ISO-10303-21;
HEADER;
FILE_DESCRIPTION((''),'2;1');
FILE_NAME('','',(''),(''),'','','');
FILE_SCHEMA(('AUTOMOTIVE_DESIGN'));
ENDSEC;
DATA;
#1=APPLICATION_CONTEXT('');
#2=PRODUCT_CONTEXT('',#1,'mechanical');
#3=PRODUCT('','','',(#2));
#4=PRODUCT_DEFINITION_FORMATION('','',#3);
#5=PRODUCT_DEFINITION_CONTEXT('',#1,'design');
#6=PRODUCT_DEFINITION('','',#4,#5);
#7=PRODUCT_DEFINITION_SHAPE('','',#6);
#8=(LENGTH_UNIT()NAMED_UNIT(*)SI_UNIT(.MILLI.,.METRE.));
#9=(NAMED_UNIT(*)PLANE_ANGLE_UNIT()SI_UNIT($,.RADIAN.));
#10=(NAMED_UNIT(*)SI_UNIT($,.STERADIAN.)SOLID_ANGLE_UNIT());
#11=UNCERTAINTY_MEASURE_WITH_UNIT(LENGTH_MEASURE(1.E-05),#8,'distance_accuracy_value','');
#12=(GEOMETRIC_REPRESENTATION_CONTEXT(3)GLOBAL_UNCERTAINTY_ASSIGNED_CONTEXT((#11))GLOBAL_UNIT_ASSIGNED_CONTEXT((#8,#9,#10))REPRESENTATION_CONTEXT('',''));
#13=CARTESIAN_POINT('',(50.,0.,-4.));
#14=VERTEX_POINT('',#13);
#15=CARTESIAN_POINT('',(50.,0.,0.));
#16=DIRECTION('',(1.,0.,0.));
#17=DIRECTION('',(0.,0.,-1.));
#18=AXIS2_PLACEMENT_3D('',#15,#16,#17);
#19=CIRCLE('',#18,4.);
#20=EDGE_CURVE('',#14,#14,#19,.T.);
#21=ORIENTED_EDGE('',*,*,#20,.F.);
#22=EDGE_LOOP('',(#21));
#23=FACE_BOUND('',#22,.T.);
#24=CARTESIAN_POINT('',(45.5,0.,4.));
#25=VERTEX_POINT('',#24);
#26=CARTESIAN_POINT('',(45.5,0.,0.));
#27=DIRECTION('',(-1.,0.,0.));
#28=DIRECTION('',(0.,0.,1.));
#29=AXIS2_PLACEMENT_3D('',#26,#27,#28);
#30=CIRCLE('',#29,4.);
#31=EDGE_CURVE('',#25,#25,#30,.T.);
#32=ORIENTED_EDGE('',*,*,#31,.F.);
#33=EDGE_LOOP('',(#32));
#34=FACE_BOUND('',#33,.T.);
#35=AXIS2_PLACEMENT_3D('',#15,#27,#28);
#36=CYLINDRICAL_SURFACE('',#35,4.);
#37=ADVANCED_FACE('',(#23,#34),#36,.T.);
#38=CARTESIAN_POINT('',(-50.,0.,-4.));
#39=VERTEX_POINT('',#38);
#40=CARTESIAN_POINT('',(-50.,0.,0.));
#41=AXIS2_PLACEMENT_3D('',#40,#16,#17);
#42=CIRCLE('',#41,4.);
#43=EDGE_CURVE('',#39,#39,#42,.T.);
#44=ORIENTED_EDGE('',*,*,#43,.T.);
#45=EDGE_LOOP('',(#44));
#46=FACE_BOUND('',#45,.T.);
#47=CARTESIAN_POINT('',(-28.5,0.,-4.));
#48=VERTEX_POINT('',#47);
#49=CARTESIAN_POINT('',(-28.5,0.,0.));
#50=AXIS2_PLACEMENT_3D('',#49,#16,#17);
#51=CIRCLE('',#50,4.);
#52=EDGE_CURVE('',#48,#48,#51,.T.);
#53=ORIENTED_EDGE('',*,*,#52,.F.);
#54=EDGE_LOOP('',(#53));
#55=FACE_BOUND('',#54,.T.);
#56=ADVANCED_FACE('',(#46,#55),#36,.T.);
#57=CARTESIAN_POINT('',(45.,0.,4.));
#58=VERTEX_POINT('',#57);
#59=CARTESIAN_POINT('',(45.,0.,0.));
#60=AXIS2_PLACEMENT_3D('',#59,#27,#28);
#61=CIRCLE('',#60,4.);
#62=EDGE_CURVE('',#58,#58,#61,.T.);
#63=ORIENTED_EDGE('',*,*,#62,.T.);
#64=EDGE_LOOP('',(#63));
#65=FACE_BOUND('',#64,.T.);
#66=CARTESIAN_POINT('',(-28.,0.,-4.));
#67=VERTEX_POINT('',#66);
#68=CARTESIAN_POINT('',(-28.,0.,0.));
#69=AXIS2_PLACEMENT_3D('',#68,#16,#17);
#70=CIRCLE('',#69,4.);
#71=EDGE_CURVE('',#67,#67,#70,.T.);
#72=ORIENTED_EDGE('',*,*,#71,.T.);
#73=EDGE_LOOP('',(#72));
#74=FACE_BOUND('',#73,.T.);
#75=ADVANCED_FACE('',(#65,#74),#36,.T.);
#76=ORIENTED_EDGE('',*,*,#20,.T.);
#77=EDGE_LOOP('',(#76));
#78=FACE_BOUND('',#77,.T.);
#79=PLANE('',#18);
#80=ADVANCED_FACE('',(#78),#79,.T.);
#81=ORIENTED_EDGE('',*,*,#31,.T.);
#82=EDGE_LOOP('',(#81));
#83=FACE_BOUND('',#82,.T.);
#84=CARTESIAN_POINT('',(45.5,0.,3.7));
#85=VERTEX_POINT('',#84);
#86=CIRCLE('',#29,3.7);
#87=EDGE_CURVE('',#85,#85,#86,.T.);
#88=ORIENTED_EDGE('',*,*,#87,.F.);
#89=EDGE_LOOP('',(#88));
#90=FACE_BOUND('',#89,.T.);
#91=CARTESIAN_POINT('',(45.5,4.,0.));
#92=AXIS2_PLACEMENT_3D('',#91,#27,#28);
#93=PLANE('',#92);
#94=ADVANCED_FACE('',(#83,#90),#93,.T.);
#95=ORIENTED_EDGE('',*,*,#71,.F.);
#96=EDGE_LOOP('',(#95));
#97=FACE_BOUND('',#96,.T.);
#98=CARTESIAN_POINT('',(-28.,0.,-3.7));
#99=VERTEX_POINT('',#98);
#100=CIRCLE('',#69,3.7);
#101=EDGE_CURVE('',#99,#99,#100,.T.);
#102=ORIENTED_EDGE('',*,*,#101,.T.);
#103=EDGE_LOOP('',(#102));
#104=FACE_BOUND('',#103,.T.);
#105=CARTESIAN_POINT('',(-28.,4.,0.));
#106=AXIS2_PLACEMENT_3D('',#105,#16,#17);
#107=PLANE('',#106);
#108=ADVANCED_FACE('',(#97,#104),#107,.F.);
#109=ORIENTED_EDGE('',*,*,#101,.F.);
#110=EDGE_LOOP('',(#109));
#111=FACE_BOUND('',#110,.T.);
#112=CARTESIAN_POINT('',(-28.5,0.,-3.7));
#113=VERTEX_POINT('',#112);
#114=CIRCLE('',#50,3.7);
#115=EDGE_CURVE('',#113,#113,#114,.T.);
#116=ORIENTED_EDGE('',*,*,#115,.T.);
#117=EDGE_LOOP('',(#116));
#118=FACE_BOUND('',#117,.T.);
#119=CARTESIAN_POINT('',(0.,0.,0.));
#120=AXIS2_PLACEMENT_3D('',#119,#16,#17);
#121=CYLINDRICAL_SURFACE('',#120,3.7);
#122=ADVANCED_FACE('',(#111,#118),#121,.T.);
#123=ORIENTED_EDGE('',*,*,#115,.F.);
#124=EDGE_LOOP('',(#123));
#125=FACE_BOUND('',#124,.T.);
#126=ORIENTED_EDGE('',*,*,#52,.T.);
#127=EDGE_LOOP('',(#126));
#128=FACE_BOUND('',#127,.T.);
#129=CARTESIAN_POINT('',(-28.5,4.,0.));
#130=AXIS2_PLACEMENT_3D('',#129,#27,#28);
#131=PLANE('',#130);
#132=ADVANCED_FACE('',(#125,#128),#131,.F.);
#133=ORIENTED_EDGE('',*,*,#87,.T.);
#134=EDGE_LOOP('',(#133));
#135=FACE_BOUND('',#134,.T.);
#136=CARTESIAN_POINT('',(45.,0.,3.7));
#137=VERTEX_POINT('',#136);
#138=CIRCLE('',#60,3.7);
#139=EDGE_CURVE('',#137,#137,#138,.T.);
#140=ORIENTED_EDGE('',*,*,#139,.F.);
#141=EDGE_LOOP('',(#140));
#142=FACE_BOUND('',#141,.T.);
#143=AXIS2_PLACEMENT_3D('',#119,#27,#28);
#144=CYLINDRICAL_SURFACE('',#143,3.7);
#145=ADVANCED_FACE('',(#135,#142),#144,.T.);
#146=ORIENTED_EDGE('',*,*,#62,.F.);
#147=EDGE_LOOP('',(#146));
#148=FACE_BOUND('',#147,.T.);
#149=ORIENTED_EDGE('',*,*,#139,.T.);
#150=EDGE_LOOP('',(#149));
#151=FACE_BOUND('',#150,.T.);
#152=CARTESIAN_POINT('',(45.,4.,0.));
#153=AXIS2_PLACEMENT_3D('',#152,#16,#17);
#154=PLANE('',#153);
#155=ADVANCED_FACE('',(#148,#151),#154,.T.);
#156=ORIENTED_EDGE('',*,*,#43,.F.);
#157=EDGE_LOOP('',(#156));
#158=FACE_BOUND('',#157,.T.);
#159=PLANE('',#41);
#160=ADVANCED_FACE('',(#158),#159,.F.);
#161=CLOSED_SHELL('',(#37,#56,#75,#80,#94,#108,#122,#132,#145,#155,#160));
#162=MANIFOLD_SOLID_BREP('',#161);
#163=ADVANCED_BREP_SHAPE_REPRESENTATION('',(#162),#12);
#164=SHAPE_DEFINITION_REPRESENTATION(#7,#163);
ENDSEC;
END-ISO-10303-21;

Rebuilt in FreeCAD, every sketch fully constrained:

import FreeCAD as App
import Part
import Sketcher

doc = App.newDocument("Part")
body = doc.addObject("PartDesign::Body", "Body")

# Sketch on YZ plane
sketch1 = body.newObject("Sketcher::SketchObject", "Sketch")
sketch1.AttachmentSupport = (doc.getObject("YZ_Plane"), [""])
sketch1.MapMode = "FlatFace"
sketch1.addGeometry(Part.Circle(App.Vector(0, 0, 0), App.Vector(0, 0, 1), 4), False)
sketch1.addConstraint([
    Sketcher.Constraint("Coincident", 0, 3, -1, 1),
    Sketcher.Constraint("Diameter", 0, 8.0),
])
pad1 = body.newObject("PartDesign::Pad", "Pad")
pad1.Profile = sketch1
pad1.Length = 100
pad1.Midplane = True

# Sketch on XY plane
sketch2 = body.newObject("Sketcher::SketchObject", "Sketch001")
sketch2.AttachmentSupport = (doc.getObject("XY_Plane"), [""])
sketch2.MapMode = "FlatFace"
sketch2.addGeometry([
    Part.LineSegment(App.Vector(45, 4, 0), App.Vector(45, 3.7, 0)),
    Part.LineSegment(App.Vector(45, 3.7, 0), App.Vector(45.5, 3.7, 0)),
    Part.LineSegment(App.Vector(45.5, 3.7, 0), App.Vector(45.5, 4, 0)),
    Part.LineSegment(App.Vector(45.5, 4, 0), App.Vector(45, 4, 0)),
], False)
sketch2.addConstraint([
    Sketcher.Constraint("Coincident", 0, 2, 1, 1),
    Sketcher.Constraint("Coincident", 1, 2, 2, 1),
    Sketcher.Constraint("Coincident", 2, 2, 3, 1),
    Sketcher.Constraint("Coincident", 3, 2, 0, 1),
    Sketcher.Constraint("Vertical", 0),
    Sketcher.Constraint("Horizontal", 1),
    Sketcher.Constraint("Vertical", 2),
    Sketcher.Constraint("Horizontal", 3),
    Sketcher.Constraint("DistanceX", 1, 1, 1, 2, 0.5),
    Sketcher.Constraint("DistanceY", 0, 2, 0, 1, 0.3),
    Sketcher.Constraint("DistanceX", -1, 1, 0, 2, 45.0),
    Sketcher.Constraint("DistanceY", -1, 1, 2, 2, 4.0),
])
groove = body.newObject("PartDesign::Groove", "Groove")
groove.Profile = sketch2
groove.ReferenceAxis = (sketch2, ["H_Axis"])
groove.Angle = 360

# Sketch on XY plane
sketch3 = body.newObject("Sketcher::SketchObject", "Sketch002")
sketch3.AttachmentSupport = (doc.getObject("XY_Plane"), [""])
sketch3.MapMode = "FlatFace"
sketch3.addGeometry([
    Part.LineSegment(App.Vector(-28.5, 4, 0), App.Vector(-28.5, 3.7, 0)),
    Part.LineSegment(App.Vector(-28.5, 3.7, 0), App.Vector(-28, 3.7, 0)),
    Part.LineSegment(App.Vector(-28, 3.7, 0), App.Vector(-28, 4, 0)),
    Part.LineSegment(App.Vector(-28, 4, 0), App.Vector(-28.5, 4, 0)),
], False)
sketch3.addConstraint([
    Sketcher.Constraint("Coincident", 0, 2, 1, 1),
    Sketcher.Constraint("Coincident", 1, 2, 2, 1),
    Sketcher.Constraint("Coincident", 2, 2, 3, 1),
    Sketcher.Constraint("Coincident", 3, 2, 0, 1),
    Sketcher.Constraint("Vertical", 0),
    Sketcher.Constraint("Horizontal", 1),
    Sketcher.Constraint("Vertical", 2),
    Sketcher.Constraint("Horizontal", 3),
    Sketcher.Constraint("DistanceX", 1, 1, 1, 2, 0.5),
    Sketcher.Constraint("DistanceY", 0, 2, 0, 1, 0.3),
    Sketcher.Constraint("DistanceX", 1, 2, -1, 1, 28.0),
    Sketcher.Constraint("DistanceY", -1, 1, 2, 2, 4.0),
])
groove2 = body.newObject("PartDesign::Groove", "Groove001")
groove2.Profile = sketch3
groove2.ReferenceAxis = (sketch3, ["H_Axis"])
groove2.Angle = 360

doc.recompute()
